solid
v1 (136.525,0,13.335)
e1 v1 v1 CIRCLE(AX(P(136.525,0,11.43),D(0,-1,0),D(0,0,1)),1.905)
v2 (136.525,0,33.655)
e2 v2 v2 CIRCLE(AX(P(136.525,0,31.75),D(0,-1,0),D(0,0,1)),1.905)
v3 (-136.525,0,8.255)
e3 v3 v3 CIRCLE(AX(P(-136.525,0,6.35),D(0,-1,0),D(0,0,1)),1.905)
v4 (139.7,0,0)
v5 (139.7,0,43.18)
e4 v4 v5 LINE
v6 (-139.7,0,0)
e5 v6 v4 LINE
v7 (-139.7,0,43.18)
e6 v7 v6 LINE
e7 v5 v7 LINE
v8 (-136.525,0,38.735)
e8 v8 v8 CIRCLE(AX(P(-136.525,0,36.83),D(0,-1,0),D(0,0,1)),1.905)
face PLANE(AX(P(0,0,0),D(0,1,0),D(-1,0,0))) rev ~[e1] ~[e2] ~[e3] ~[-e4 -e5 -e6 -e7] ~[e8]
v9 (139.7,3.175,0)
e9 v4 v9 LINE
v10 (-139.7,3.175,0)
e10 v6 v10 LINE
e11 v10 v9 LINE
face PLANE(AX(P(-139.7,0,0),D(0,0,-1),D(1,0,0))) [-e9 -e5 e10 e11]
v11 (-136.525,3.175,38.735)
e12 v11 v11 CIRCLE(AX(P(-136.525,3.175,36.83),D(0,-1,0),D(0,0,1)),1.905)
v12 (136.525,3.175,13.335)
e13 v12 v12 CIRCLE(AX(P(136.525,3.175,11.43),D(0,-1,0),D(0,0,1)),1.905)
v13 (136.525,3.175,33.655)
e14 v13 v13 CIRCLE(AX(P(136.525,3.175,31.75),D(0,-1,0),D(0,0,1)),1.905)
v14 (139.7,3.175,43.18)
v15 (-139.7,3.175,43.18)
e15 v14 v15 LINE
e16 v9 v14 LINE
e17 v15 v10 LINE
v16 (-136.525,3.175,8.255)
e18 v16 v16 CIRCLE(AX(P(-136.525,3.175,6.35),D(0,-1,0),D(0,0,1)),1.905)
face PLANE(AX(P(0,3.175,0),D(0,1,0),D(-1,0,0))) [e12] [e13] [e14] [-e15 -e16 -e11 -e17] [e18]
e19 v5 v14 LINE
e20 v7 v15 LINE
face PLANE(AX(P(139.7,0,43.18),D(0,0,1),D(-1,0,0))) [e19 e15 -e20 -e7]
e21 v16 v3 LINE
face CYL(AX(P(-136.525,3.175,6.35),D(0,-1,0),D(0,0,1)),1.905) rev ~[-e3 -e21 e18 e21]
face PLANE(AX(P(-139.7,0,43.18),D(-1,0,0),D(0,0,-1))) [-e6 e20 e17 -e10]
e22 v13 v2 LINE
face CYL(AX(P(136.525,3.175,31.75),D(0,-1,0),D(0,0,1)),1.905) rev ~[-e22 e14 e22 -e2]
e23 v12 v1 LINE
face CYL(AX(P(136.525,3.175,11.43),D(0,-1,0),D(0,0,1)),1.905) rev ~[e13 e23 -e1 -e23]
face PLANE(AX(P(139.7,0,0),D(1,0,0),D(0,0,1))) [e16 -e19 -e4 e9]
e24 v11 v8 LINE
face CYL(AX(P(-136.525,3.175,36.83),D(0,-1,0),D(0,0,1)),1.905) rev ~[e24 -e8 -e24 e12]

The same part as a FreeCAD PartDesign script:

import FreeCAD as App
import Part
import Sketcher
Q = App.Units.Quantity


def add_polygon(sketch, points):
    """Adds a closed chain of lines whose ends are joined by coincident constraints."""
    first, n = sketch.GeometryCount, len(points)
    for a, b in zip(points, points[1:] + points[:1]):
        sketch.addGeometry(Part.LineSegment(App.Vector(*a, 0), App.Vector(*b, 0)), False)
    for i in range(n):
        sketch.addConstraint(Sketcher.Constraint("Coincident", first + i, 2, first + (i + 1) % n, 1))

doc = App.newDocument("Part")
body = doc.addObject("PartDesign::Body", "Body")

sketch1 = body.newObject("Sketcher::SketchObject", "Sketch")
sketch1.AttachmentSupport = (doc.getObject("XZ_Plane"), [""])
sketch1.MapMode = "FlatFace"
add_polygon(sketch1, [(140, 43), (140, 0), (-140, 0), (-140, 43)])
sketch1.addConstraint([
    Sketcher.Constraint("Vertical", 0),
    Sketcher.Constraint("Horizontal", 1),
    Sketcher.Constraint("Vertical", 2),
    Sketcher.Constraint("Horizontal", 3),
    Sketcher.Constraint("Symmetric", 0, 2, 1, 2, -1, 1),
    Sketcher.Constraint("DistanceX", 1, 2, 1, 1, Q("11 in")),
    Sketcher.Constraint("DistanceY", 0, 2, 0, 1, Q("1.7 in")),
])
pad1 = body.newObject("PartDesign::Pad", "Pad")
pad1.Profile = sketch1
pad1.Length = Q("0.125 in")
pad1.Reversed = True

sketch2 = body.newObject("Sketcher::SketchObject", "Sketch001")
sketch2.AttachmentSupport = (doc.getObject("XZ_Plane"), [""])
sketch2.MapMode = "FlatFace"
sketch2.AttachmentOffset = App.Placement(App.Vector(0, 0, -0.125 * 25.4), App.Rotation())
sketch2.addGeometry([
    Part.Circle(App.Vector(-136.5, 36.8, 0), App.Vector(0, 0, 1), 1.9),
    Part.Circle(App.Vector(-136.5, 6.3, 0), App.Vector(0, 0, 1), 1.9),
    Part.Circle(App.Vector(136.5, 11.4, 0), App.Vector(0, 0, 1), 1.9),
    Part.Circle(App.Vector(136.5, 31.8, 0), App.Vector(0, 0, 1), 1.9),
], False)
sketch2.addConstraint([
    Sketcher.Constraint("Equal", 0, 1),
    Sketcher.Constraint("Equal", 1, 2),
    Sketcher.Constraint("Equal", 2, 3),
    Sketcher.Constraint("Vertical", 0, 3, 1, 3),
    Sketcher.Constraint("Vertical", 2, 3, 3, 3),
    Sketcher.Constraint("Diameter", 0, Q("0.15 in")),
    Sketcher.Constraint("DistanceY", 2, 3, 0, 3, Q("1 in")),
    Sketcher.Constraint("DistanceY", 1, 3, 3, 3, Q("1 in")),
    Sketcher.Constraint("DistanceY", 1, 3, 0, 3, Q("1.2 in")),
    Sketcher.Constraint("DistanceY", -1, 1, 0, 3, Q("1.45 in")),
    Sketcher.Constraint("DistanceX", 1, 3, 2, 3, Q("10.75 in")),
    Sketcher.Constraint("DistanceX", 0, 3, -1, 1, Q("5.375 in")),
])
doc.recompute()
hole = body.newObject("PartDesign::Hole", "Hole")
hole.Profile = sketch2
hole.ThreadType = "None"
hole.Diameter = Q("0.15 in")
hole.DepthType = "ThroughAll"
hole.Reversed = True

doc.recompute()
